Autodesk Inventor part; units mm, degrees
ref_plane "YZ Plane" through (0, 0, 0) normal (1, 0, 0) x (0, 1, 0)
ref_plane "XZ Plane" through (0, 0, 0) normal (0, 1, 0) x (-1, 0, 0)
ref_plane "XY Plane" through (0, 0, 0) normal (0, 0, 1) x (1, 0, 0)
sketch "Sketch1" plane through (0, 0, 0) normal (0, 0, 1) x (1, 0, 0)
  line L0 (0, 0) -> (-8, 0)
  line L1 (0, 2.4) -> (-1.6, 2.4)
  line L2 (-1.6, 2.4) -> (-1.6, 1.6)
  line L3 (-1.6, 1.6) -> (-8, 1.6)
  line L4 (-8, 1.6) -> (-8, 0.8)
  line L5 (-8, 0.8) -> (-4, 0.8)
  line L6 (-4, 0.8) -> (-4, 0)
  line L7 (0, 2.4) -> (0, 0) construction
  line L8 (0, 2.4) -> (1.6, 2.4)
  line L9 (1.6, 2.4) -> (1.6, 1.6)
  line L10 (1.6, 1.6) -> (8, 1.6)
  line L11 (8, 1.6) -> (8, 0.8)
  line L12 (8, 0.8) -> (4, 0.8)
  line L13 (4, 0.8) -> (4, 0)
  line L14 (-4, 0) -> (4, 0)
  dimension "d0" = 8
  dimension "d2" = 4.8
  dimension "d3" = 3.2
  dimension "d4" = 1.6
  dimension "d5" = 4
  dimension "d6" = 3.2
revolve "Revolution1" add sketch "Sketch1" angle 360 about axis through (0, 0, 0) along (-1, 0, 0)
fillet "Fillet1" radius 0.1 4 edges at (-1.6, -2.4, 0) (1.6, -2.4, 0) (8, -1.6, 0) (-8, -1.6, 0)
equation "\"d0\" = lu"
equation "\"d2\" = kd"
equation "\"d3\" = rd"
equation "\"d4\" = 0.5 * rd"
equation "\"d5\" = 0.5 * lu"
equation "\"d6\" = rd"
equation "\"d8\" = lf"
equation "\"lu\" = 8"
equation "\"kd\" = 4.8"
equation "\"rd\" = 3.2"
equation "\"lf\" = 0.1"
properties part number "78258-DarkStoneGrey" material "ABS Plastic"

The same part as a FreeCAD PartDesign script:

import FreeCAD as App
import Part
import Sketcher
Q = App.Units.Quantity


def edges_at(feature, points):
    """Names of the edges that pass closest to the given points."""
    edges = feature.Shape.Edges
    near = lambda p: min(range(len(edges)), key=lambda i: edges[i].distToShape(Part.Vertex(*p))[0])
    return sorted({f"Edge{near(p) + 1}" for p in points})


def add_polygon(sketch, points):
    """Adds a closed chain of lines whose ends are joined by coincident constraints."""
    first, n = sketch.GeometryCount, len(points)
    for a, b in zip(points, points[1:] + points[:1]):
        sketch.addGeometry(Part.LineSegment(App.Vector(*a, 0), App.Vector(*b, 0)), False)
    for i in range(n):
        sketch.addConstraint(Sketcher.Constraint("Coincident", first + i, 2, first + (i + 1) % n, 1))

doc = App.newDocument("Part")
body = doc.addObject("PartDesign::Body", "Body")

# Sketch on XY plane
sketch1 = body.newObject("Sketcher::SketchObject", "Sketch")
sketch1.AttachmentSupport = (doc.getObject("XY_Plane"), [""])
sketch1.MapMode = "FlatFace"
add_polygon(sketch1, [(-4, 0), (4, 0), (4, 0.8), (8, 0.8), (8, 1.6), (1.6, 1.6), (1.6, 2.4), (-1.6, 2.4), (-1.6, 1.6), (-8, 1.6), (-8, 0.8), (-4, 0.8)])  # lines 0-11
sketch1.addConstraint(Sketcher.Constraint("Horizontal", 0))
sketch1.addConstraint(Sketcher.Constraint("Vertical", 1))
sketch1.addConstraint(Sketcher.Constraint("Horizontal", 2))
sketch1.addConstraint(Sketcher.Constraint("Vertical", 3))
sketch1.addConstraint(Sketcher.Constraint("Horizontal", 4))
sketch1.addConstraint(Sketcher.Constraint("Vertical", 5))
sketch1.addConstraint(Sketcher.Constraint("Horizontal", 6))
sketch1.addConstraint(Sketcher.Constraint("Vertical", 7))
sketch1.addConstraint(Sketcher.Constraint("Horizontal", 8))
sketch1.addConstraint(Sketcher.Constraint("Vertical", 9))
sketch1.addConstraint(Sketcher.Constraint("Horizontal", 10))
sketch1.addConstraint(Sketcher.Constraint("Vertical", 11))
sketch1.addConstraint(Sketcher.Constraint("Symmetric", 0, 2, 11, 2, -1, 1))
sketch1.addConstraint(Sketcher.Constraint("Symmetric", 4, 2, 7, 2, -2))
sketch1.addConstraint(Sketcher.Constraint("Symmetric", 2, 2, 9, 2, -2))
sketch1.addConstraint(Sketcher.Constraint("Equal", 1, 3))
sketch1.addConstraint(Sketcher.Constraint("Equal", 3, 5))
sketch1.addConstraint(Sketcher.Constraint("DistanceX", 0, 1, 0, 2, Q("8 mm")))
sketch1.addConstraint(Sketcher.Constraint("DistanceX", 2, 1, 2, 2, Q("4 mm")))
sketch1.addConstraint(Sketcher.Constraint("DistanceX", 6, 2, 6, 1, Q("3.2 mm")))
sketch1.addConstraint(Sketcher.Constraint("DistanceY", -1, 1, 3, 2, Q("1.6 mm")))
revolution = body.newObject("PartDesign::Revolution", "Revolution")
revolution.Profile = sketch1
revolution.ReferenceAxis = (sketch1, ["H_Axis"])
revolution.Angle = 360
doc.recompute()

fillet = body.newObject("PartDesign::Fillet", "Fillet")
fillet.Base = (revolution, edges_at(revolution, [
    (-1.6, -2.4, 0),
    (1.6, -2.4, 0),
    (8, -1.6, 0),
    (-8, -1.6, 0),
]))
fillet.Radius = 0.1

doc.recompute()
